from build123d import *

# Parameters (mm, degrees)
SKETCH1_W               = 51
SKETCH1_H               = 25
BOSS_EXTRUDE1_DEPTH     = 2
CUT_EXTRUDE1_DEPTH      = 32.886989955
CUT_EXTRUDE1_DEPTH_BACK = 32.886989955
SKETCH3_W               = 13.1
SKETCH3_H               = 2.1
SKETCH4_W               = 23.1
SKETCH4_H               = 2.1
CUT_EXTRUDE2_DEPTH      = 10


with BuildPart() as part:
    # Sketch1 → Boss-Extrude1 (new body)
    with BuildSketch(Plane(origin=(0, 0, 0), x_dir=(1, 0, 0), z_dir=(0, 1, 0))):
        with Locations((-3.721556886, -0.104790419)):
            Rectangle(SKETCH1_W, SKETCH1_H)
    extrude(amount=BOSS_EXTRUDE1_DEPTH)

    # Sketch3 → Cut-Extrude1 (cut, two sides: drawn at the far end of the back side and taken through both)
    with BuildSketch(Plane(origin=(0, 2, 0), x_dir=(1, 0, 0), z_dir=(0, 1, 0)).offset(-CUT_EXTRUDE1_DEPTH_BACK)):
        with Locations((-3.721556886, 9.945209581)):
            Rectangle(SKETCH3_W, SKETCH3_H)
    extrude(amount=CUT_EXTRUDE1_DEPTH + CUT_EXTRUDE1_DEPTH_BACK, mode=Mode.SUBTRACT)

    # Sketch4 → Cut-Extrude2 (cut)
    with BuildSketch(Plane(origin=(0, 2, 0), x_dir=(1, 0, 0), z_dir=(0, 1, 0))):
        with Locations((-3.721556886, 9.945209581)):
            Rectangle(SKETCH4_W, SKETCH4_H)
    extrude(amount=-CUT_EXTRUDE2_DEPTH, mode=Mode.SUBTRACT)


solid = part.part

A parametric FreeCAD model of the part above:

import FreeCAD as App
import Part
import Sketcher
from FreeCAD import Vector

doc = App.newDocument("Part")
body = doc.addObject("PartDesign::Body", "Body")

sketch1 = body.newObject("Sketcher::SketchObject", "Sketch")
sketch1.AttachmentSupport = (doc.getObject("XZ_Plane"), [""])
sketch1.MapMode = "FlatFace"
sketch1.addGeometry(Part.LineSegment(Vector(-29, -12, 0), Vector(-29, 13, 0)), False)
sketch1.addGeometry(Part.LineSegment(Vector(-29, 13, 0), Vector(22, 13, 0)), False)
sketch1.addGeometry(Part.LineSegment(Vector(22, 13, 0), Vector(22, -12, 0)), False)
sketch1.addGeometry(Part.LineSegment(Vector(22, -12, 0), Vector(-29, -12, 0)), False)
sketch1.addConstraint(Sketcher.Constraint("Coincident", 0, 2, 1, 1))
sketch1.addConstraint(Sketcher.Constraint("Coincident", 1, 2, 2, 1))
sketch1.addConstraint(Sketcher.Constraint("Coincident", 2, 2, 3, 1))
sketch1.addConstraint(Sketcher.Constraint("Coincident", 3, 2, 0, 1))
sketch1.addConstraint(Sketcher.Constraint("Vertical", 0))
sketch1.addConstraint(Sketcher.Constraint("Horizontal", 1))
sketch1.addConstraint(Sketcher.Constraint("Vertical", 2))
sketch1.addConstraint(Sketcher.Constraint("Horizontal", 3))
sketch1.addConstraint(Sketcher.Constraint("DistanceX", 1, 1, 1, 2, 51.0))
sketch1.addConstraint(Sketcher.Constraint("DistanceY", 0, 1, 0, 2, 25.0))
sketch1.addConstraint(Sketcher.Constraint("DistanceY", -1, 1, 0, 2, 12.60479))
sketch1.addConstraint(Sketcher.Constraint("DistanceX", 0, 2, -1, 1, 29.221557))
pad1 = body.newObject("PartDesign::Pad", "Pad")
pad1.Profile = sketch1
pad1.Length = 2
pad1.Reversed = True

sketch2 = body.newObject("Sketcher::SketchObject", "Sketch001")
sketch2.AttachmentSupport = (doc.getObject("XZ_Plane"), [""])
sketch2.MapMode = "FlatFace"
sketch2.AttachmentOffset = App.Placement(Vector(0, 0, -2), App.Rotation())
sketch2.addGeometry(Part.LineSegment(Vector(-10.3, -11, 0), Vector(-10.3, -8.9, 0)), False)
sketch2.addGeometry(Part.LineSegment(Vector(-10.3, -8.9, 0), Vector(2.8, -8.9, 0)), False)
sketch2.addGeometry(Part.LineSegment(Vector(2.8, -8.9, 0), Vector(2.8, -11, 0)), False)
sketch2.addGeometry(Part.LineSegment(Vector(2.8, -11, 0), Vector(-10.3, -11, 0)), False)
sketch2.addConstraint(Sketcher.Constraint("Coincident", 0, 2, 1, 1))
sketch2.addConstraint(Sketcher.Constraint("Coincident", 1, 2, 2, 1))
sketch2.addConstraint(Sketcher.Constraint("Coincident", 2, 2, 3, 1))
sketch2.addConstraint(Sketcher.Constraint("Coincident", 3, 2, 0, 1))
sketch2.addConstraint(Sketcher.Constraint("Vertical", 0))
sketch2.addConstraint(Sketcher.Constraint("Horizontal", 1))
sketch2.addConstraint(Sketcher.Constraint("Vertical", 2))
sketch2.addConstraint(Sketcher.Constraint("Horizontal", 3))
sketch2.addConstraint(Sketcher.Constraint("DistanceX", 1, 1, 1, 2, 13.1))
sketch2.addConstraint(Sketcher.Constraint("DistanceY", 0, 1, 0, 2, 2.1))
sketch2.addConstraint(Sketcher.Constraint("DistanceY", 0, 2, -1, 1, 8.89521))
sketch2.addConstraint(Sketcher.Constraint("DistanceX", 0, 2, -1, 1, 10.271557))
pocket1 = body.newObject("PartDesign::Pocket", "Pocket")
pocket1.Profile = sketch2
pocket1.Type = "ThroughAll"
pocket1.Midplane = True

sketch3 = body.newObject("Sketcher::SketchObject", "Sketch002")
sketch3.AttachmentSupport = (doc.getObject("XZ_Plane"), [""])
sketch3.MapMode = "FlatFace"
sketch3.AttachmentOffset = App.Placement(Vector(0, 0, -2), App.Rotation())
sketch3.addGeometry(Part.LineSegment(Vector(-15.3, -11, 0), Vector(-15.3, -8.9, 0)), False)
sketch3.addGeometry(Part.LineSegment(Vector(-15.3, -8.9, 0), Vector(7.8, -8.9, 0)), False)
sketch3.addGeometry(Part.LineSegment(Vector(7.8, -8.9, 0), Vector(7.8, -11, 0)), False)
sketch3.addGeometry(Part.LineSegment(Vector(7.8, -11, 0), Vector(-15.3, -11, 0)), False)
sketch3.addConstraint(Sketcher.Constraint("Coincident", 0, 2, 1, 1))
sketch3.addConstraint(Sketcher.Constraint("Coincident", 1, 2, 2, 1))
sketch3.addConstraint(Sketcher.Constraint("Coincident", 2, 2, 3, 1))
sketch3.addConstraint(Sketcher.Constraint("Coincident", 3, 2, 0, 1))
sketch3.addConstraint(Sketcher.Constraint("Vertical", 0))
sketch3.addConstraint(Sketcher.Constraint("Horizontal", 1))
sketch3.addConstraint(Sketcher.Constraint("Vertical", 2))
sketch3.addConstraint(Sketcher.Constraint("Horizontal", 3))
sketch3.addConstraint(Sketcher.Constraint("DistanceX", 1, 1, 1, 2, 23.1))
sketch3.addConstraint(Sketcher.Constraint("DistanceY", 0, 1, 0, 2, 2.1))
sketch3.addConstraint(Sketcher.Constraint("DistanceY", 0, 2, -1, 1, 8.89521))
sketch3.addConstraint(Sketcher.Constraint("DistanceX", 0, 2, -1, 1, 15.271557))
pocket2 = body.newObject("PartDesign::Pocket", "Pocket001")
pocket2.Profile = sketch3
pocket2.Length = 10
pocket2.Reversed = True

doc.recompute()
